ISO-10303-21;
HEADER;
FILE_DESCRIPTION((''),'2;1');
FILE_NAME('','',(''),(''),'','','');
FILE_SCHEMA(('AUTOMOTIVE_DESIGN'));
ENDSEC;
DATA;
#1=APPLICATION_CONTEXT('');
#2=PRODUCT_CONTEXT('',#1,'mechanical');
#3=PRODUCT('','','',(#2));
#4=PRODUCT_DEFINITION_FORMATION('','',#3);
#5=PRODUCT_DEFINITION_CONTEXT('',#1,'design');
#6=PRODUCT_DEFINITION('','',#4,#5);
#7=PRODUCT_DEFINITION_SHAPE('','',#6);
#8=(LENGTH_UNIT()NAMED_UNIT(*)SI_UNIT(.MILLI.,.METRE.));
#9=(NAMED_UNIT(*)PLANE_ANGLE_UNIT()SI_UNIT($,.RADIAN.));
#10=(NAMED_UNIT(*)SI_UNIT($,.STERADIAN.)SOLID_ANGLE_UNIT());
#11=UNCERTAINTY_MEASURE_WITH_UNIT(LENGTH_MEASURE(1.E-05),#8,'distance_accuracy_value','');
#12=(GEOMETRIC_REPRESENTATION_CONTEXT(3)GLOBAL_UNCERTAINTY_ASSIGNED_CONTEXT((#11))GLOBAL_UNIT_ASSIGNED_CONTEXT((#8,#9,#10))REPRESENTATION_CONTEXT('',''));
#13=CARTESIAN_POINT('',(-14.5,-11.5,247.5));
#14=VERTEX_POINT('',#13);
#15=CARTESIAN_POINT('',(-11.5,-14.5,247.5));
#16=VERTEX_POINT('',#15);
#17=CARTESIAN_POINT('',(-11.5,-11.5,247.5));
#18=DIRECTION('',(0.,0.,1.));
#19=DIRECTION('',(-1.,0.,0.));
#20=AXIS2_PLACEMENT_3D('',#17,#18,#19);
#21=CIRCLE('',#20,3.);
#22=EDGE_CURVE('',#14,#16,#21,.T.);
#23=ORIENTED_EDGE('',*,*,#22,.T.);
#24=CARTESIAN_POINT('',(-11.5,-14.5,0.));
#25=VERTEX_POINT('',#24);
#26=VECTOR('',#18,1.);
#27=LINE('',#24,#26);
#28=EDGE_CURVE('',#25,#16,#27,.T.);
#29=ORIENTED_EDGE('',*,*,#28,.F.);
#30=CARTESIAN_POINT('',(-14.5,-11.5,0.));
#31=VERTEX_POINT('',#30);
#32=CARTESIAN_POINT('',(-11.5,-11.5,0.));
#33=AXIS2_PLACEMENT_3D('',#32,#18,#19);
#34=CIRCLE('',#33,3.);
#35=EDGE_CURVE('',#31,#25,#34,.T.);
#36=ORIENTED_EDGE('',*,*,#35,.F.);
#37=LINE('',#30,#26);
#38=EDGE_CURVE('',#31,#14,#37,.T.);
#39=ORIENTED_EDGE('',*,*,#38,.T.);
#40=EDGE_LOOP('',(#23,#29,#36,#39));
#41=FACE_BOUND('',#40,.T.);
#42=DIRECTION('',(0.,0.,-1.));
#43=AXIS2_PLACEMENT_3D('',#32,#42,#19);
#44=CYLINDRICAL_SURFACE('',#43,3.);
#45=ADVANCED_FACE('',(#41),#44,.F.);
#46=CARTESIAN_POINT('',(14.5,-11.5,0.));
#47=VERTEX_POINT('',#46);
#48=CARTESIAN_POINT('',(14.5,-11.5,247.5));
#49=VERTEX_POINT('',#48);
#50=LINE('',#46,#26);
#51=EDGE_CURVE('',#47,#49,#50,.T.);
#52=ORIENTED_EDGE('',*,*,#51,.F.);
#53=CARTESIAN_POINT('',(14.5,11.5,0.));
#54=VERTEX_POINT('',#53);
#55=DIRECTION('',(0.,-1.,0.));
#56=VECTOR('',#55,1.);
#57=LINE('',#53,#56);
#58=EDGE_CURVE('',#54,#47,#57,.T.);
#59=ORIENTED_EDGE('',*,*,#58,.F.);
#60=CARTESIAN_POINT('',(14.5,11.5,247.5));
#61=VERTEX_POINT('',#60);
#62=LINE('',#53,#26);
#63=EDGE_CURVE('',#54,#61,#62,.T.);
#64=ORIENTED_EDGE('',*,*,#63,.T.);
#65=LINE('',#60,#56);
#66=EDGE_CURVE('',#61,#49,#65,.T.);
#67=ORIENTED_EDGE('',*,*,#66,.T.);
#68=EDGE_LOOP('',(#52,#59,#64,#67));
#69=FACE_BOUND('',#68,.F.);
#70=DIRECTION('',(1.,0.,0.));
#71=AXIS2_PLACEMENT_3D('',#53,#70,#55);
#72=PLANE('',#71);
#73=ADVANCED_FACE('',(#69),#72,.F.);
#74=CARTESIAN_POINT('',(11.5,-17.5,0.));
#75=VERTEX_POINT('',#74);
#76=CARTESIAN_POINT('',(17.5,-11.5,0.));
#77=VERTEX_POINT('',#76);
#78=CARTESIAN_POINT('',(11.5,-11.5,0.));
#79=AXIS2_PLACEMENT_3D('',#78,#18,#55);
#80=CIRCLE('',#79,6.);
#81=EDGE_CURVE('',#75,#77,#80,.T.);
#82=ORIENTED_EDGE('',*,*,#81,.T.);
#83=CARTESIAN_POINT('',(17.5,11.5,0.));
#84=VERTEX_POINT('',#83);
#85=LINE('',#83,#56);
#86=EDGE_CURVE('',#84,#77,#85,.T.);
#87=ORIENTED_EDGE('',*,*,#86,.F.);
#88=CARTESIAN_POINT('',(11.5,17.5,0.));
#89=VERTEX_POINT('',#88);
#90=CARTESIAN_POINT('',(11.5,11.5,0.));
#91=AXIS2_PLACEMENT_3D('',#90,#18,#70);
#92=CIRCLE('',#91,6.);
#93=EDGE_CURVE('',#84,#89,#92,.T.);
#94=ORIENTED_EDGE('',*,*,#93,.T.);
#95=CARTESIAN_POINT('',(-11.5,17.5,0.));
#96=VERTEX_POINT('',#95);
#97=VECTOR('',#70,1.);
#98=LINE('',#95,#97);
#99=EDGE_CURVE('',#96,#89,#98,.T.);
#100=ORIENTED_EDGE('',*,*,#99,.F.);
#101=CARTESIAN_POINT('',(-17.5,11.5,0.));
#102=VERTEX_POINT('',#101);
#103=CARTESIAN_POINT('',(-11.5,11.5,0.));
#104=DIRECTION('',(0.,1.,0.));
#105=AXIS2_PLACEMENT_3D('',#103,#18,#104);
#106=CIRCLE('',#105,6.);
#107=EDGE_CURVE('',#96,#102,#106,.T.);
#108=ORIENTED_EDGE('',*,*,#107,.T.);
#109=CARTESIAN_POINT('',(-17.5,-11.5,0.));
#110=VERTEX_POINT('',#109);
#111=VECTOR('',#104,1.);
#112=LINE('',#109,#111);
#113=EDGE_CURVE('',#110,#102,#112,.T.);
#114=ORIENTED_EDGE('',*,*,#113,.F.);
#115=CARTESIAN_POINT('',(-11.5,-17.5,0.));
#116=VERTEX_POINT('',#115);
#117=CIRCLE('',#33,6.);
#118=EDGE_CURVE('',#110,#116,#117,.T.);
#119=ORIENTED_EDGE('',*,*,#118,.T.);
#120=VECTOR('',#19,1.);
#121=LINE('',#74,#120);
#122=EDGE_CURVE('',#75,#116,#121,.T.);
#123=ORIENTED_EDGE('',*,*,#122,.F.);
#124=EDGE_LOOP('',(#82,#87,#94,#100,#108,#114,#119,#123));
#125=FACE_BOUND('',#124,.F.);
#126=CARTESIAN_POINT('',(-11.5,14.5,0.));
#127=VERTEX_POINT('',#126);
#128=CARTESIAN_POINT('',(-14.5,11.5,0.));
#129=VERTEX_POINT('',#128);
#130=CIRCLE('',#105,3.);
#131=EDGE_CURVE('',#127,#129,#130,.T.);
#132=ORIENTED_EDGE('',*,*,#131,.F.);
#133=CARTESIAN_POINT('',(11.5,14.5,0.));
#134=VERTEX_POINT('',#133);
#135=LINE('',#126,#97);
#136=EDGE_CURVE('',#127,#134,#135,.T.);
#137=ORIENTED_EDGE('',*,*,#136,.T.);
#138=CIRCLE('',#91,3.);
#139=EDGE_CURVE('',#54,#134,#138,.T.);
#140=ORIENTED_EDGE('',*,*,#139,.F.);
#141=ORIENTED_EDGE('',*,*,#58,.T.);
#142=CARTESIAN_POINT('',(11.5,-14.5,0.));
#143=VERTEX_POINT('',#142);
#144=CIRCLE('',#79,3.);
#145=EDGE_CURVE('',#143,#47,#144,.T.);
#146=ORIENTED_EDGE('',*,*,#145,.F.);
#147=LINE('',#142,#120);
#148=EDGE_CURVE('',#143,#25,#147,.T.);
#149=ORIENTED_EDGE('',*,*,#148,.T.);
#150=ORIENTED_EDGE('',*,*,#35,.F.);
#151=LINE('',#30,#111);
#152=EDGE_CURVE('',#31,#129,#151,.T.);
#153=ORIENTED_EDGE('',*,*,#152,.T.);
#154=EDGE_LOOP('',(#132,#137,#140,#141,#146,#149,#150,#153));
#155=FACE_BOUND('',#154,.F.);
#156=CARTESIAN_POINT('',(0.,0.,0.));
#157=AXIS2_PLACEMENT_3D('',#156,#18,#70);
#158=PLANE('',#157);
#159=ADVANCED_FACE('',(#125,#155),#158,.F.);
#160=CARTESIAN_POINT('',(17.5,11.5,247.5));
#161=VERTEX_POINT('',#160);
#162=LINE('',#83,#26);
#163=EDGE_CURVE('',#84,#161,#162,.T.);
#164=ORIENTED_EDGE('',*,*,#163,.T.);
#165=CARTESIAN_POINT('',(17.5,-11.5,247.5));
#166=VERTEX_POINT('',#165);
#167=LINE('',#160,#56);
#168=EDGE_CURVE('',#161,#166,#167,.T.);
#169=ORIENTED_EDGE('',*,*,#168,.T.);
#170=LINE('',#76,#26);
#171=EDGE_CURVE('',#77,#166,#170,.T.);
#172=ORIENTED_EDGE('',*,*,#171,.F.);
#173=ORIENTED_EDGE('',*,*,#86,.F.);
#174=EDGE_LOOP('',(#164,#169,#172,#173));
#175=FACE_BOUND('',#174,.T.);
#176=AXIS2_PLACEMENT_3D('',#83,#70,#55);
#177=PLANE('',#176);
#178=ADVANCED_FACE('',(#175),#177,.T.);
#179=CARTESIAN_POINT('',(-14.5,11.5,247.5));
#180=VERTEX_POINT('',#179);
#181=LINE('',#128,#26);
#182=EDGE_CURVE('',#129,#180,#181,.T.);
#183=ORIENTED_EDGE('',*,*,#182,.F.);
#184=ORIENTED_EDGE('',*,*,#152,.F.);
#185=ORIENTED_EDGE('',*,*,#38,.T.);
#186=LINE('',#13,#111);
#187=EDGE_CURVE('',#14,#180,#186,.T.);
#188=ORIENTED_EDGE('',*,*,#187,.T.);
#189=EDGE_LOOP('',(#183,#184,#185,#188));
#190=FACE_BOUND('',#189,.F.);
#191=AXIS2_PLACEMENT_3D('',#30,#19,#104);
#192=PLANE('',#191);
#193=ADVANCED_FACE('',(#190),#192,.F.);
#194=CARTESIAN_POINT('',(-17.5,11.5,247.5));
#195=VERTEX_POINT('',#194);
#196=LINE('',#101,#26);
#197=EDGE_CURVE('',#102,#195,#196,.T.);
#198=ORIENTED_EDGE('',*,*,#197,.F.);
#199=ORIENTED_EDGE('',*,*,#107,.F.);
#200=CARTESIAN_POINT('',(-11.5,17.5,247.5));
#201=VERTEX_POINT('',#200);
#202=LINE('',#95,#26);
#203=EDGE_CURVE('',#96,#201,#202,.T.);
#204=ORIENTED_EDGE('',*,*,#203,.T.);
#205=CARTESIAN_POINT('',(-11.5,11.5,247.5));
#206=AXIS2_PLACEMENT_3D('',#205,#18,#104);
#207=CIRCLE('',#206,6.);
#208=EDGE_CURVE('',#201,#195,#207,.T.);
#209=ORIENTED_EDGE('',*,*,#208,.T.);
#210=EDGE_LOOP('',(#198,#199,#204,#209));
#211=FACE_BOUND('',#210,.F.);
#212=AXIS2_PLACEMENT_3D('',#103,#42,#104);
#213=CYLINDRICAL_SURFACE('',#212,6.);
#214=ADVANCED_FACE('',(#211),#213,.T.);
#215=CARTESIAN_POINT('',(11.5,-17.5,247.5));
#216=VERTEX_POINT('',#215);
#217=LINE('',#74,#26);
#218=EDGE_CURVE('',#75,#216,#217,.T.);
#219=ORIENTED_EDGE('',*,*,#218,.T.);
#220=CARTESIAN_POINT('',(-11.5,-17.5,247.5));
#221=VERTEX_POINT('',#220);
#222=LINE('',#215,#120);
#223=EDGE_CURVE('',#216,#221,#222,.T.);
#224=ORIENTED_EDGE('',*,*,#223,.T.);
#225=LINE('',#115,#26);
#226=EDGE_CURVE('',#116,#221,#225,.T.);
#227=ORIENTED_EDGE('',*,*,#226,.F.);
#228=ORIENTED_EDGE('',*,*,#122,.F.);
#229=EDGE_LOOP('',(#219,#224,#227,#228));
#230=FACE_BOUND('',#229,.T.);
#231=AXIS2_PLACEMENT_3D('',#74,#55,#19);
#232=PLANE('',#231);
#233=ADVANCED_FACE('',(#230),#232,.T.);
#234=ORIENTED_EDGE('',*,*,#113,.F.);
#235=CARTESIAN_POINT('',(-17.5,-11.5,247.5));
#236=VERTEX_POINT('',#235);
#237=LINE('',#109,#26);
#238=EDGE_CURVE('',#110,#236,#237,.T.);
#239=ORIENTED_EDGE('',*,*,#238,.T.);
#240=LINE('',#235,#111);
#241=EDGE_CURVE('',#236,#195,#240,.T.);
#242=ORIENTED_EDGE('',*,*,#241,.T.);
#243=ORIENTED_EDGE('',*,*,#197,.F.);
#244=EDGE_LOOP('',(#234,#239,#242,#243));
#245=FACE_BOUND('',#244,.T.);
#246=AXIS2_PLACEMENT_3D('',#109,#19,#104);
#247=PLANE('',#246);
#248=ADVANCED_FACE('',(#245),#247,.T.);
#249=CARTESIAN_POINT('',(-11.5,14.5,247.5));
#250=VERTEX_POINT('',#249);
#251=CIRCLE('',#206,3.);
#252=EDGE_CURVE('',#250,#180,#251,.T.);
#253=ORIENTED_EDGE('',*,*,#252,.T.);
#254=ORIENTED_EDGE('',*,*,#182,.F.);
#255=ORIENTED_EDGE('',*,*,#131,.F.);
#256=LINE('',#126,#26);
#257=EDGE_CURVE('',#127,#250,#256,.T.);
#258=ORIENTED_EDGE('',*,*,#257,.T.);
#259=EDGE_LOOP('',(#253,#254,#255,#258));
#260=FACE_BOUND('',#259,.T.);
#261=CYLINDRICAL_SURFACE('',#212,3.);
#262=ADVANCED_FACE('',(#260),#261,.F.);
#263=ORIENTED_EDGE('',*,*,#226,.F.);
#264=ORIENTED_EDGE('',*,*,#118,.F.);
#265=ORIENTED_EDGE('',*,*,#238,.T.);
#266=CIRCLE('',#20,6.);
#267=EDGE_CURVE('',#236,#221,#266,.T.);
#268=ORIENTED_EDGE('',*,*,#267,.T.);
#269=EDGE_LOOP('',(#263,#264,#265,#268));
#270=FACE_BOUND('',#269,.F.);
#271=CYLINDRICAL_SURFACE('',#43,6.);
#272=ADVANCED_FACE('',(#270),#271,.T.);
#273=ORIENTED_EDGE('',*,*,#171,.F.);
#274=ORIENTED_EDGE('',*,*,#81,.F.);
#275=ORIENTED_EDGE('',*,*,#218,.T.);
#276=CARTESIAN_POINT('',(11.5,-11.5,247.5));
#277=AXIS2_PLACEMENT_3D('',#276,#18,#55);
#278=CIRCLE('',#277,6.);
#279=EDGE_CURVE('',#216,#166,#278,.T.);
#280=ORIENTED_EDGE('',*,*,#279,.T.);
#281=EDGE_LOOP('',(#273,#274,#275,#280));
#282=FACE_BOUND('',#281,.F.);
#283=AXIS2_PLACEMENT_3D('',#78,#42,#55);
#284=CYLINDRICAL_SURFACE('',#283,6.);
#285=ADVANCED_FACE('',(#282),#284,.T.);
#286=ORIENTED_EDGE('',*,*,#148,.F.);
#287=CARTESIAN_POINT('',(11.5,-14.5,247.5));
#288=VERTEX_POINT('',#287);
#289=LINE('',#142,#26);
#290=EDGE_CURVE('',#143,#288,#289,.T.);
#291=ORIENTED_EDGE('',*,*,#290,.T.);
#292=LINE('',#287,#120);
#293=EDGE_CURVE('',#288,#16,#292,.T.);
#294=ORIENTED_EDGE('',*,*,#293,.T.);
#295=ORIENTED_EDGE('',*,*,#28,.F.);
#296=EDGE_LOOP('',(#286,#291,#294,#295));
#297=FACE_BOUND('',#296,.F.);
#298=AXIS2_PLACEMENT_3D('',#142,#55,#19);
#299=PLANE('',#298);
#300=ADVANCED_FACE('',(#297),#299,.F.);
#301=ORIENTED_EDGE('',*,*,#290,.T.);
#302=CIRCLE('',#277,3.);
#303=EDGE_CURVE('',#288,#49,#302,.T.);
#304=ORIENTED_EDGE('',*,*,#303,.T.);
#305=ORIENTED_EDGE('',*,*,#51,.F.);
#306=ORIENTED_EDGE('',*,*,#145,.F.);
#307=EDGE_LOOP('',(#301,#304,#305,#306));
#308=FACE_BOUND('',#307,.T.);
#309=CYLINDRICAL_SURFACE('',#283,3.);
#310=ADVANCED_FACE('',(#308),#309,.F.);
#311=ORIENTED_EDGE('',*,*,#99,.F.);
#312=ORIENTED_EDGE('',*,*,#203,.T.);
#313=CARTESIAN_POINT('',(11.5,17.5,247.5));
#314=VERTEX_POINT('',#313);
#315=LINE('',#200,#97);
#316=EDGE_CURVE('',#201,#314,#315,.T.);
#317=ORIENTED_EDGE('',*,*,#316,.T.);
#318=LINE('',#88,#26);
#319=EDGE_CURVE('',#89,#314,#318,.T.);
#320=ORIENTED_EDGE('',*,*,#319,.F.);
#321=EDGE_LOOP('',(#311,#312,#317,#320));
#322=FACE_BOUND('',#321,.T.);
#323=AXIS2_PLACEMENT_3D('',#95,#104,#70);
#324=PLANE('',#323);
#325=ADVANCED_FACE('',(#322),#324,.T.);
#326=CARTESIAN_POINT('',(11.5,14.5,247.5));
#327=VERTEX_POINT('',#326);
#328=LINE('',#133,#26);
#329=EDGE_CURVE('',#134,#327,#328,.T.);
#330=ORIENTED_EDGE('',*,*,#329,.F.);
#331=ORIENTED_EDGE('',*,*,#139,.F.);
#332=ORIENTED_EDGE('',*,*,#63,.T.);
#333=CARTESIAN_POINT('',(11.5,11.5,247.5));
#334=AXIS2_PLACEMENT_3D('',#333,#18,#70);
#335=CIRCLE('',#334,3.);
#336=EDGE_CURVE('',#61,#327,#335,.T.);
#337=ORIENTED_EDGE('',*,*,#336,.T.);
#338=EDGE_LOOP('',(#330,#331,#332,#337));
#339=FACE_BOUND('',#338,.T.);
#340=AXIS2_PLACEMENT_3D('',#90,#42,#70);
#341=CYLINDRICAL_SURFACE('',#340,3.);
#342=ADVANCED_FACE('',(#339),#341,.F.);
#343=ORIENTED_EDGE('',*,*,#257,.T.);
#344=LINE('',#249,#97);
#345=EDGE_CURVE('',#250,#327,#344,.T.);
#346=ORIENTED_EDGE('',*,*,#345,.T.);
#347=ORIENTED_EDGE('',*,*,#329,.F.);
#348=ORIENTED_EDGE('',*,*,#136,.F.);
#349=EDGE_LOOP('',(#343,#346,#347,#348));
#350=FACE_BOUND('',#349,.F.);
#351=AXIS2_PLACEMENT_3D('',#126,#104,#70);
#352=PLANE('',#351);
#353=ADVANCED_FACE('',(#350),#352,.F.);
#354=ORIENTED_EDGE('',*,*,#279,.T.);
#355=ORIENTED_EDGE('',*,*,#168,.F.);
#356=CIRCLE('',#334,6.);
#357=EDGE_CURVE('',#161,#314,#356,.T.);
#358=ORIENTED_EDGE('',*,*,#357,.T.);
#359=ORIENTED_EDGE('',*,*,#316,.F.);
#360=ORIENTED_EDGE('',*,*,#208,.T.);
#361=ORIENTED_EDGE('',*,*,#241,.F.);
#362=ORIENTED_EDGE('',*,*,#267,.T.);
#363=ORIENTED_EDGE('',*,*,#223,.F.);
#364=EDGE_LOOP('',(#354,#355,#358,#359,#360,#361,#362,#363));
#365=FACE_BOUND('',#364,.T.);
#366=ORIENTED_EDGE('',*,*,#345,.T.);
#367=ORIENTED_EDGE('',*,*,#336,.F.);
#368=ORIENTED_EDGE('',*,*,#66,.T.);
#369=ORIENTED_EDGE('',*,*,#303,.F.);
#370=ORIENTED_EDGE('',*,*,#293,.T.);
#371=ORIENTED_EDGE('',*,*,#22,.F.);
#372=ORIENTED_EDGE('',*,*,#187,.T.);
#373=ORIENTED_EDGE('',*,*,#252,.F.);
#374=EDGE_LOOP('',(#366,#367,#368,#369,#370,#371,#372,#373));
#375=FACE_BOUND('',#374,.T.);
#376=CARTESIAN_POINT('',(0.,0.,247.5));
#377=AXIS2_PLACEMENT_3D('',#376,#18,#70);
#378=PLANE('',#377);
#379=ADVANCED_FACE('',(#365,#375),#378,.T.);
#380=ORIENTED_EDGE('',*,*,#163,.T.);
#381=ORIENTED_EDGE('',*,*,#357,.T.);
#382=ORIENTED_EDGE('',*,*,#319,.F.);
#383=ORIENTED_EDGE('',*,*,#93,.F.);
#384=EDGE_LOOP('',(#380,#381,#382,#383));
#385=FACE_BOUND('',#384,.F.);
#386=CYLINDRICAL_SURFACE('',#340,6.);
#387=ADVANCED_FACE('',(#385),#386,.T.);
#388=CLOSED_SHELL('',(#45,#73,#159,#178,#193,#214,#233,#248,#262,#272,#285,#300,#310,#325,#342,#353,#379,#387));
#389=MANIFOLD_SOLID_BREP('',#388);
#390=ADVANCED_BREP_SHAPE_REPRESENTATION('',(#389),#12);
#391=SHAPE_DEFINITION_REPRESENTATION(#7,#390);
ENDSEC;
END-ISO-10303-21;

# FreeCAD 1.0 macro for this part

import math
import FreeCAD as App
import Part
import Sketcher
from FreeCAD import Vector
Q = App.Units.Quantity

doc = App.newDocument("Part")
params = doc.addObject("Spreadsheet::Sheet", "Params")
for row, (alias, value) in enumerate([
    ("sketch1_radius", "6 mm"),
    ("sketch1_radius2", "3 mm"),
    ("pad1_length", "247.5 mm"),
], start=1):
    params.set(f"A{row}", alias)
    params.set(f"B{row}", "=" + value)
    params.setAlias(f"B{row}", alias)

body = doc.addObject("PartDesign::Body", "Body")

# Sketch on XY plane
sketch1 = body.newObject("Sketcher::SketchObject", "Sketch")
sketch1.AttachmentSupport = (doc.getObject("XY_Plane"), [""])
sketch1.MapMode = "FlatFace"
sketch1.addGeometry([
    Part.LineSegment(Vector(11.5, 17.5, 0), Vector(-11.5, 17.5, 0)),  # 0
    Part.ArcOfCircle(Part.Circle(Vector(-11.5, 11.5, 0), Vector(0, 0, 1), 6), math.radians(90), math.radians(180)),  # 1
    Part.LineSegment(Vector(-17.5, 11.5, 0), Vector(-17.5, -11.5, 0)),  # 2
    Part.ArcOfCircle(Part.Circle(Vector(-11.5, -11.5, 0), Vector(0, 0, 1), 6), math.radians(180), math.radians(270)),  # 3
    Part.LineSegment(Vector(-11.5, -17.5, 0), Vector(11.5, -17.5, 0)),  # 4
    Part.ArcOfCircle(Part.Circle(Vector(11.5, -11.5, 0), Vector(0, 0, 1), 6), math.radians(-90), math.radians(0)),  # 5
    Part.LineSegment(Vector(17.5, -11.5, 0), Vector(17.5, 11.5, 0)),  # 6
    Part.ArcOfCircle(Part.Circle(Vector(11.5, 11.5, 0), Vector(0, 0, 1), 6), math.radians(0), math.radians(90)),  # 7
    Part.ArcOfCircle(Part.Circle(Vector(-11.5, 11.5, 0), Vector(0, 0, 1), 3), math.radians(90), math.radians(180)),  # 8
    Part.LineSegment(Vector(-11.5, 14.5, 0), Vector(11.5, 14.5, 0)),  # 9
    Part.ArcOfCircle(Part.Circle(Vector(11.5, 11.5, 0), Vector(0, 0, 1), 3), math.radians(0), math.radians(90)),  # 10
    Part.LineSegment(Vector(14.5, 11.5, 0), Vector(14.5, -11.5, 0)),  # 11
    Part.ArcOfCircle(Part.Circle(Vector(11.5, -11.5, 0), Vector(0, 0, 1), 3), math.radians(-90), math.radians(0)),  # 12
    Part.LineSegment(Vector(11.5, -14.5, 0), Vector(-11.5, -14.5, 0)),  # 13
    Part.ArcOfCircle(Part.Circle(Vector(-11.5, -11.5, 0), Vector(0, 0, 1), 3), math.radians(180), math.radians(270)),  # 14
    Part.LineSegment(Vector(-14.5, -11.5, 0), Vector(-14.5, 11.5, 0)),  # 15
], False)
sketch1.addConstraint([
    Sketcher.Constraint("Tangent", 0, 2, 1, 1),
    Sketcher.Constraint("Tangent", 1, 2, 2, 1),
    Sketcher.Constraint("Tangent", 2, 2, 3, 1),
    Sketcher.Constraint("Tangent", 3, 2, 4, 1),
    Sketcher.Constraint("Tangent", 4, 2, 5, 1),
    Sketcher.Constraint("Tangent", 5, 2, 6, 1),
    Sketcher.Constraint("Tangent", 6, 2, 7, 1),
    Sketcher.Constraint("Tangent", 7, 2, 0, 1),
    Sketcher.Constraint("Tangent", 8, 1, 9, 1),
    Sketcher.Constraint("Tangent", 9, 2, 10, 2),
    Sketcher.Constraint("Tangent", 10, 1, 11, 1),
    Sketcher.Constraint("Tangent", 11, 2, 12, 2),
    Sketcher.Constraint("Tangent", 12, 1, 13, 1),
    Sketcher.Constraint("Tangent", 13, 2, 14, 2),
    Sketcher.Constraint("Tangent", 14, 1, 15, 1),
    Sketcher.Constraint("Tangent", 15, 2, 8, 2),
    Sketcher.Constraint("Horizontal", 0),
    Sketcher.Constraint("Vertical", 2),
    Sketcher.Constraint("Horizontal", 4),
    Sketcher.Constraint("Vertical", 6),
    Sketcher.Constraint("Horizontal", 9),
    Sketcher.Constraint("Vertical", 11),
    Sketcher.Constraint("Horizontal", 13),
    Sketcher.Constraint("Vertical", 15),
    Sketcher.Constraint("Coincident", 8, 3, 1, 3),
    Sketcher.Constraint("Coincident", 10, 3, 7, 3),
    Sketcher.Constraint("Coincident", 12, 3, 5, 3),
    Sketcher.Constraint("Equal", 1, 3),
    Sketcher.Constraint("Equal", 3, 5),
    Sketcher.Constraint("Equal", 5, 7),
    Sketcher.Constraint("Equal", 12, 14),
    Sketcher.Constraint("Symmetric", 1, 3, 5, 3, -1, 1),
    Sketcher.Constraint("Equal", 13, 2),
    Sketcher.Constraint("Radius", 1, Q("6 mm")),
    Sketcher.Constraint("Radius", 8, Q("3 mm")),
    Sketcher.Constraint("DistanceY", -1, 1, 0, 2, Q("17.5 mm")),
])
sketch1.setExpression("Constraints[33]", "Params.sketch1_radius")
sketch1.setExpression("Constraints[34]", "Params.sketch1_radius2")
pad1 = body.newObject("PartDesign::Pad", "Pad")
pad1.Profile = sketch1
pad1.setExpression("Length", "Params.pad1_length")

doc.recompute()
